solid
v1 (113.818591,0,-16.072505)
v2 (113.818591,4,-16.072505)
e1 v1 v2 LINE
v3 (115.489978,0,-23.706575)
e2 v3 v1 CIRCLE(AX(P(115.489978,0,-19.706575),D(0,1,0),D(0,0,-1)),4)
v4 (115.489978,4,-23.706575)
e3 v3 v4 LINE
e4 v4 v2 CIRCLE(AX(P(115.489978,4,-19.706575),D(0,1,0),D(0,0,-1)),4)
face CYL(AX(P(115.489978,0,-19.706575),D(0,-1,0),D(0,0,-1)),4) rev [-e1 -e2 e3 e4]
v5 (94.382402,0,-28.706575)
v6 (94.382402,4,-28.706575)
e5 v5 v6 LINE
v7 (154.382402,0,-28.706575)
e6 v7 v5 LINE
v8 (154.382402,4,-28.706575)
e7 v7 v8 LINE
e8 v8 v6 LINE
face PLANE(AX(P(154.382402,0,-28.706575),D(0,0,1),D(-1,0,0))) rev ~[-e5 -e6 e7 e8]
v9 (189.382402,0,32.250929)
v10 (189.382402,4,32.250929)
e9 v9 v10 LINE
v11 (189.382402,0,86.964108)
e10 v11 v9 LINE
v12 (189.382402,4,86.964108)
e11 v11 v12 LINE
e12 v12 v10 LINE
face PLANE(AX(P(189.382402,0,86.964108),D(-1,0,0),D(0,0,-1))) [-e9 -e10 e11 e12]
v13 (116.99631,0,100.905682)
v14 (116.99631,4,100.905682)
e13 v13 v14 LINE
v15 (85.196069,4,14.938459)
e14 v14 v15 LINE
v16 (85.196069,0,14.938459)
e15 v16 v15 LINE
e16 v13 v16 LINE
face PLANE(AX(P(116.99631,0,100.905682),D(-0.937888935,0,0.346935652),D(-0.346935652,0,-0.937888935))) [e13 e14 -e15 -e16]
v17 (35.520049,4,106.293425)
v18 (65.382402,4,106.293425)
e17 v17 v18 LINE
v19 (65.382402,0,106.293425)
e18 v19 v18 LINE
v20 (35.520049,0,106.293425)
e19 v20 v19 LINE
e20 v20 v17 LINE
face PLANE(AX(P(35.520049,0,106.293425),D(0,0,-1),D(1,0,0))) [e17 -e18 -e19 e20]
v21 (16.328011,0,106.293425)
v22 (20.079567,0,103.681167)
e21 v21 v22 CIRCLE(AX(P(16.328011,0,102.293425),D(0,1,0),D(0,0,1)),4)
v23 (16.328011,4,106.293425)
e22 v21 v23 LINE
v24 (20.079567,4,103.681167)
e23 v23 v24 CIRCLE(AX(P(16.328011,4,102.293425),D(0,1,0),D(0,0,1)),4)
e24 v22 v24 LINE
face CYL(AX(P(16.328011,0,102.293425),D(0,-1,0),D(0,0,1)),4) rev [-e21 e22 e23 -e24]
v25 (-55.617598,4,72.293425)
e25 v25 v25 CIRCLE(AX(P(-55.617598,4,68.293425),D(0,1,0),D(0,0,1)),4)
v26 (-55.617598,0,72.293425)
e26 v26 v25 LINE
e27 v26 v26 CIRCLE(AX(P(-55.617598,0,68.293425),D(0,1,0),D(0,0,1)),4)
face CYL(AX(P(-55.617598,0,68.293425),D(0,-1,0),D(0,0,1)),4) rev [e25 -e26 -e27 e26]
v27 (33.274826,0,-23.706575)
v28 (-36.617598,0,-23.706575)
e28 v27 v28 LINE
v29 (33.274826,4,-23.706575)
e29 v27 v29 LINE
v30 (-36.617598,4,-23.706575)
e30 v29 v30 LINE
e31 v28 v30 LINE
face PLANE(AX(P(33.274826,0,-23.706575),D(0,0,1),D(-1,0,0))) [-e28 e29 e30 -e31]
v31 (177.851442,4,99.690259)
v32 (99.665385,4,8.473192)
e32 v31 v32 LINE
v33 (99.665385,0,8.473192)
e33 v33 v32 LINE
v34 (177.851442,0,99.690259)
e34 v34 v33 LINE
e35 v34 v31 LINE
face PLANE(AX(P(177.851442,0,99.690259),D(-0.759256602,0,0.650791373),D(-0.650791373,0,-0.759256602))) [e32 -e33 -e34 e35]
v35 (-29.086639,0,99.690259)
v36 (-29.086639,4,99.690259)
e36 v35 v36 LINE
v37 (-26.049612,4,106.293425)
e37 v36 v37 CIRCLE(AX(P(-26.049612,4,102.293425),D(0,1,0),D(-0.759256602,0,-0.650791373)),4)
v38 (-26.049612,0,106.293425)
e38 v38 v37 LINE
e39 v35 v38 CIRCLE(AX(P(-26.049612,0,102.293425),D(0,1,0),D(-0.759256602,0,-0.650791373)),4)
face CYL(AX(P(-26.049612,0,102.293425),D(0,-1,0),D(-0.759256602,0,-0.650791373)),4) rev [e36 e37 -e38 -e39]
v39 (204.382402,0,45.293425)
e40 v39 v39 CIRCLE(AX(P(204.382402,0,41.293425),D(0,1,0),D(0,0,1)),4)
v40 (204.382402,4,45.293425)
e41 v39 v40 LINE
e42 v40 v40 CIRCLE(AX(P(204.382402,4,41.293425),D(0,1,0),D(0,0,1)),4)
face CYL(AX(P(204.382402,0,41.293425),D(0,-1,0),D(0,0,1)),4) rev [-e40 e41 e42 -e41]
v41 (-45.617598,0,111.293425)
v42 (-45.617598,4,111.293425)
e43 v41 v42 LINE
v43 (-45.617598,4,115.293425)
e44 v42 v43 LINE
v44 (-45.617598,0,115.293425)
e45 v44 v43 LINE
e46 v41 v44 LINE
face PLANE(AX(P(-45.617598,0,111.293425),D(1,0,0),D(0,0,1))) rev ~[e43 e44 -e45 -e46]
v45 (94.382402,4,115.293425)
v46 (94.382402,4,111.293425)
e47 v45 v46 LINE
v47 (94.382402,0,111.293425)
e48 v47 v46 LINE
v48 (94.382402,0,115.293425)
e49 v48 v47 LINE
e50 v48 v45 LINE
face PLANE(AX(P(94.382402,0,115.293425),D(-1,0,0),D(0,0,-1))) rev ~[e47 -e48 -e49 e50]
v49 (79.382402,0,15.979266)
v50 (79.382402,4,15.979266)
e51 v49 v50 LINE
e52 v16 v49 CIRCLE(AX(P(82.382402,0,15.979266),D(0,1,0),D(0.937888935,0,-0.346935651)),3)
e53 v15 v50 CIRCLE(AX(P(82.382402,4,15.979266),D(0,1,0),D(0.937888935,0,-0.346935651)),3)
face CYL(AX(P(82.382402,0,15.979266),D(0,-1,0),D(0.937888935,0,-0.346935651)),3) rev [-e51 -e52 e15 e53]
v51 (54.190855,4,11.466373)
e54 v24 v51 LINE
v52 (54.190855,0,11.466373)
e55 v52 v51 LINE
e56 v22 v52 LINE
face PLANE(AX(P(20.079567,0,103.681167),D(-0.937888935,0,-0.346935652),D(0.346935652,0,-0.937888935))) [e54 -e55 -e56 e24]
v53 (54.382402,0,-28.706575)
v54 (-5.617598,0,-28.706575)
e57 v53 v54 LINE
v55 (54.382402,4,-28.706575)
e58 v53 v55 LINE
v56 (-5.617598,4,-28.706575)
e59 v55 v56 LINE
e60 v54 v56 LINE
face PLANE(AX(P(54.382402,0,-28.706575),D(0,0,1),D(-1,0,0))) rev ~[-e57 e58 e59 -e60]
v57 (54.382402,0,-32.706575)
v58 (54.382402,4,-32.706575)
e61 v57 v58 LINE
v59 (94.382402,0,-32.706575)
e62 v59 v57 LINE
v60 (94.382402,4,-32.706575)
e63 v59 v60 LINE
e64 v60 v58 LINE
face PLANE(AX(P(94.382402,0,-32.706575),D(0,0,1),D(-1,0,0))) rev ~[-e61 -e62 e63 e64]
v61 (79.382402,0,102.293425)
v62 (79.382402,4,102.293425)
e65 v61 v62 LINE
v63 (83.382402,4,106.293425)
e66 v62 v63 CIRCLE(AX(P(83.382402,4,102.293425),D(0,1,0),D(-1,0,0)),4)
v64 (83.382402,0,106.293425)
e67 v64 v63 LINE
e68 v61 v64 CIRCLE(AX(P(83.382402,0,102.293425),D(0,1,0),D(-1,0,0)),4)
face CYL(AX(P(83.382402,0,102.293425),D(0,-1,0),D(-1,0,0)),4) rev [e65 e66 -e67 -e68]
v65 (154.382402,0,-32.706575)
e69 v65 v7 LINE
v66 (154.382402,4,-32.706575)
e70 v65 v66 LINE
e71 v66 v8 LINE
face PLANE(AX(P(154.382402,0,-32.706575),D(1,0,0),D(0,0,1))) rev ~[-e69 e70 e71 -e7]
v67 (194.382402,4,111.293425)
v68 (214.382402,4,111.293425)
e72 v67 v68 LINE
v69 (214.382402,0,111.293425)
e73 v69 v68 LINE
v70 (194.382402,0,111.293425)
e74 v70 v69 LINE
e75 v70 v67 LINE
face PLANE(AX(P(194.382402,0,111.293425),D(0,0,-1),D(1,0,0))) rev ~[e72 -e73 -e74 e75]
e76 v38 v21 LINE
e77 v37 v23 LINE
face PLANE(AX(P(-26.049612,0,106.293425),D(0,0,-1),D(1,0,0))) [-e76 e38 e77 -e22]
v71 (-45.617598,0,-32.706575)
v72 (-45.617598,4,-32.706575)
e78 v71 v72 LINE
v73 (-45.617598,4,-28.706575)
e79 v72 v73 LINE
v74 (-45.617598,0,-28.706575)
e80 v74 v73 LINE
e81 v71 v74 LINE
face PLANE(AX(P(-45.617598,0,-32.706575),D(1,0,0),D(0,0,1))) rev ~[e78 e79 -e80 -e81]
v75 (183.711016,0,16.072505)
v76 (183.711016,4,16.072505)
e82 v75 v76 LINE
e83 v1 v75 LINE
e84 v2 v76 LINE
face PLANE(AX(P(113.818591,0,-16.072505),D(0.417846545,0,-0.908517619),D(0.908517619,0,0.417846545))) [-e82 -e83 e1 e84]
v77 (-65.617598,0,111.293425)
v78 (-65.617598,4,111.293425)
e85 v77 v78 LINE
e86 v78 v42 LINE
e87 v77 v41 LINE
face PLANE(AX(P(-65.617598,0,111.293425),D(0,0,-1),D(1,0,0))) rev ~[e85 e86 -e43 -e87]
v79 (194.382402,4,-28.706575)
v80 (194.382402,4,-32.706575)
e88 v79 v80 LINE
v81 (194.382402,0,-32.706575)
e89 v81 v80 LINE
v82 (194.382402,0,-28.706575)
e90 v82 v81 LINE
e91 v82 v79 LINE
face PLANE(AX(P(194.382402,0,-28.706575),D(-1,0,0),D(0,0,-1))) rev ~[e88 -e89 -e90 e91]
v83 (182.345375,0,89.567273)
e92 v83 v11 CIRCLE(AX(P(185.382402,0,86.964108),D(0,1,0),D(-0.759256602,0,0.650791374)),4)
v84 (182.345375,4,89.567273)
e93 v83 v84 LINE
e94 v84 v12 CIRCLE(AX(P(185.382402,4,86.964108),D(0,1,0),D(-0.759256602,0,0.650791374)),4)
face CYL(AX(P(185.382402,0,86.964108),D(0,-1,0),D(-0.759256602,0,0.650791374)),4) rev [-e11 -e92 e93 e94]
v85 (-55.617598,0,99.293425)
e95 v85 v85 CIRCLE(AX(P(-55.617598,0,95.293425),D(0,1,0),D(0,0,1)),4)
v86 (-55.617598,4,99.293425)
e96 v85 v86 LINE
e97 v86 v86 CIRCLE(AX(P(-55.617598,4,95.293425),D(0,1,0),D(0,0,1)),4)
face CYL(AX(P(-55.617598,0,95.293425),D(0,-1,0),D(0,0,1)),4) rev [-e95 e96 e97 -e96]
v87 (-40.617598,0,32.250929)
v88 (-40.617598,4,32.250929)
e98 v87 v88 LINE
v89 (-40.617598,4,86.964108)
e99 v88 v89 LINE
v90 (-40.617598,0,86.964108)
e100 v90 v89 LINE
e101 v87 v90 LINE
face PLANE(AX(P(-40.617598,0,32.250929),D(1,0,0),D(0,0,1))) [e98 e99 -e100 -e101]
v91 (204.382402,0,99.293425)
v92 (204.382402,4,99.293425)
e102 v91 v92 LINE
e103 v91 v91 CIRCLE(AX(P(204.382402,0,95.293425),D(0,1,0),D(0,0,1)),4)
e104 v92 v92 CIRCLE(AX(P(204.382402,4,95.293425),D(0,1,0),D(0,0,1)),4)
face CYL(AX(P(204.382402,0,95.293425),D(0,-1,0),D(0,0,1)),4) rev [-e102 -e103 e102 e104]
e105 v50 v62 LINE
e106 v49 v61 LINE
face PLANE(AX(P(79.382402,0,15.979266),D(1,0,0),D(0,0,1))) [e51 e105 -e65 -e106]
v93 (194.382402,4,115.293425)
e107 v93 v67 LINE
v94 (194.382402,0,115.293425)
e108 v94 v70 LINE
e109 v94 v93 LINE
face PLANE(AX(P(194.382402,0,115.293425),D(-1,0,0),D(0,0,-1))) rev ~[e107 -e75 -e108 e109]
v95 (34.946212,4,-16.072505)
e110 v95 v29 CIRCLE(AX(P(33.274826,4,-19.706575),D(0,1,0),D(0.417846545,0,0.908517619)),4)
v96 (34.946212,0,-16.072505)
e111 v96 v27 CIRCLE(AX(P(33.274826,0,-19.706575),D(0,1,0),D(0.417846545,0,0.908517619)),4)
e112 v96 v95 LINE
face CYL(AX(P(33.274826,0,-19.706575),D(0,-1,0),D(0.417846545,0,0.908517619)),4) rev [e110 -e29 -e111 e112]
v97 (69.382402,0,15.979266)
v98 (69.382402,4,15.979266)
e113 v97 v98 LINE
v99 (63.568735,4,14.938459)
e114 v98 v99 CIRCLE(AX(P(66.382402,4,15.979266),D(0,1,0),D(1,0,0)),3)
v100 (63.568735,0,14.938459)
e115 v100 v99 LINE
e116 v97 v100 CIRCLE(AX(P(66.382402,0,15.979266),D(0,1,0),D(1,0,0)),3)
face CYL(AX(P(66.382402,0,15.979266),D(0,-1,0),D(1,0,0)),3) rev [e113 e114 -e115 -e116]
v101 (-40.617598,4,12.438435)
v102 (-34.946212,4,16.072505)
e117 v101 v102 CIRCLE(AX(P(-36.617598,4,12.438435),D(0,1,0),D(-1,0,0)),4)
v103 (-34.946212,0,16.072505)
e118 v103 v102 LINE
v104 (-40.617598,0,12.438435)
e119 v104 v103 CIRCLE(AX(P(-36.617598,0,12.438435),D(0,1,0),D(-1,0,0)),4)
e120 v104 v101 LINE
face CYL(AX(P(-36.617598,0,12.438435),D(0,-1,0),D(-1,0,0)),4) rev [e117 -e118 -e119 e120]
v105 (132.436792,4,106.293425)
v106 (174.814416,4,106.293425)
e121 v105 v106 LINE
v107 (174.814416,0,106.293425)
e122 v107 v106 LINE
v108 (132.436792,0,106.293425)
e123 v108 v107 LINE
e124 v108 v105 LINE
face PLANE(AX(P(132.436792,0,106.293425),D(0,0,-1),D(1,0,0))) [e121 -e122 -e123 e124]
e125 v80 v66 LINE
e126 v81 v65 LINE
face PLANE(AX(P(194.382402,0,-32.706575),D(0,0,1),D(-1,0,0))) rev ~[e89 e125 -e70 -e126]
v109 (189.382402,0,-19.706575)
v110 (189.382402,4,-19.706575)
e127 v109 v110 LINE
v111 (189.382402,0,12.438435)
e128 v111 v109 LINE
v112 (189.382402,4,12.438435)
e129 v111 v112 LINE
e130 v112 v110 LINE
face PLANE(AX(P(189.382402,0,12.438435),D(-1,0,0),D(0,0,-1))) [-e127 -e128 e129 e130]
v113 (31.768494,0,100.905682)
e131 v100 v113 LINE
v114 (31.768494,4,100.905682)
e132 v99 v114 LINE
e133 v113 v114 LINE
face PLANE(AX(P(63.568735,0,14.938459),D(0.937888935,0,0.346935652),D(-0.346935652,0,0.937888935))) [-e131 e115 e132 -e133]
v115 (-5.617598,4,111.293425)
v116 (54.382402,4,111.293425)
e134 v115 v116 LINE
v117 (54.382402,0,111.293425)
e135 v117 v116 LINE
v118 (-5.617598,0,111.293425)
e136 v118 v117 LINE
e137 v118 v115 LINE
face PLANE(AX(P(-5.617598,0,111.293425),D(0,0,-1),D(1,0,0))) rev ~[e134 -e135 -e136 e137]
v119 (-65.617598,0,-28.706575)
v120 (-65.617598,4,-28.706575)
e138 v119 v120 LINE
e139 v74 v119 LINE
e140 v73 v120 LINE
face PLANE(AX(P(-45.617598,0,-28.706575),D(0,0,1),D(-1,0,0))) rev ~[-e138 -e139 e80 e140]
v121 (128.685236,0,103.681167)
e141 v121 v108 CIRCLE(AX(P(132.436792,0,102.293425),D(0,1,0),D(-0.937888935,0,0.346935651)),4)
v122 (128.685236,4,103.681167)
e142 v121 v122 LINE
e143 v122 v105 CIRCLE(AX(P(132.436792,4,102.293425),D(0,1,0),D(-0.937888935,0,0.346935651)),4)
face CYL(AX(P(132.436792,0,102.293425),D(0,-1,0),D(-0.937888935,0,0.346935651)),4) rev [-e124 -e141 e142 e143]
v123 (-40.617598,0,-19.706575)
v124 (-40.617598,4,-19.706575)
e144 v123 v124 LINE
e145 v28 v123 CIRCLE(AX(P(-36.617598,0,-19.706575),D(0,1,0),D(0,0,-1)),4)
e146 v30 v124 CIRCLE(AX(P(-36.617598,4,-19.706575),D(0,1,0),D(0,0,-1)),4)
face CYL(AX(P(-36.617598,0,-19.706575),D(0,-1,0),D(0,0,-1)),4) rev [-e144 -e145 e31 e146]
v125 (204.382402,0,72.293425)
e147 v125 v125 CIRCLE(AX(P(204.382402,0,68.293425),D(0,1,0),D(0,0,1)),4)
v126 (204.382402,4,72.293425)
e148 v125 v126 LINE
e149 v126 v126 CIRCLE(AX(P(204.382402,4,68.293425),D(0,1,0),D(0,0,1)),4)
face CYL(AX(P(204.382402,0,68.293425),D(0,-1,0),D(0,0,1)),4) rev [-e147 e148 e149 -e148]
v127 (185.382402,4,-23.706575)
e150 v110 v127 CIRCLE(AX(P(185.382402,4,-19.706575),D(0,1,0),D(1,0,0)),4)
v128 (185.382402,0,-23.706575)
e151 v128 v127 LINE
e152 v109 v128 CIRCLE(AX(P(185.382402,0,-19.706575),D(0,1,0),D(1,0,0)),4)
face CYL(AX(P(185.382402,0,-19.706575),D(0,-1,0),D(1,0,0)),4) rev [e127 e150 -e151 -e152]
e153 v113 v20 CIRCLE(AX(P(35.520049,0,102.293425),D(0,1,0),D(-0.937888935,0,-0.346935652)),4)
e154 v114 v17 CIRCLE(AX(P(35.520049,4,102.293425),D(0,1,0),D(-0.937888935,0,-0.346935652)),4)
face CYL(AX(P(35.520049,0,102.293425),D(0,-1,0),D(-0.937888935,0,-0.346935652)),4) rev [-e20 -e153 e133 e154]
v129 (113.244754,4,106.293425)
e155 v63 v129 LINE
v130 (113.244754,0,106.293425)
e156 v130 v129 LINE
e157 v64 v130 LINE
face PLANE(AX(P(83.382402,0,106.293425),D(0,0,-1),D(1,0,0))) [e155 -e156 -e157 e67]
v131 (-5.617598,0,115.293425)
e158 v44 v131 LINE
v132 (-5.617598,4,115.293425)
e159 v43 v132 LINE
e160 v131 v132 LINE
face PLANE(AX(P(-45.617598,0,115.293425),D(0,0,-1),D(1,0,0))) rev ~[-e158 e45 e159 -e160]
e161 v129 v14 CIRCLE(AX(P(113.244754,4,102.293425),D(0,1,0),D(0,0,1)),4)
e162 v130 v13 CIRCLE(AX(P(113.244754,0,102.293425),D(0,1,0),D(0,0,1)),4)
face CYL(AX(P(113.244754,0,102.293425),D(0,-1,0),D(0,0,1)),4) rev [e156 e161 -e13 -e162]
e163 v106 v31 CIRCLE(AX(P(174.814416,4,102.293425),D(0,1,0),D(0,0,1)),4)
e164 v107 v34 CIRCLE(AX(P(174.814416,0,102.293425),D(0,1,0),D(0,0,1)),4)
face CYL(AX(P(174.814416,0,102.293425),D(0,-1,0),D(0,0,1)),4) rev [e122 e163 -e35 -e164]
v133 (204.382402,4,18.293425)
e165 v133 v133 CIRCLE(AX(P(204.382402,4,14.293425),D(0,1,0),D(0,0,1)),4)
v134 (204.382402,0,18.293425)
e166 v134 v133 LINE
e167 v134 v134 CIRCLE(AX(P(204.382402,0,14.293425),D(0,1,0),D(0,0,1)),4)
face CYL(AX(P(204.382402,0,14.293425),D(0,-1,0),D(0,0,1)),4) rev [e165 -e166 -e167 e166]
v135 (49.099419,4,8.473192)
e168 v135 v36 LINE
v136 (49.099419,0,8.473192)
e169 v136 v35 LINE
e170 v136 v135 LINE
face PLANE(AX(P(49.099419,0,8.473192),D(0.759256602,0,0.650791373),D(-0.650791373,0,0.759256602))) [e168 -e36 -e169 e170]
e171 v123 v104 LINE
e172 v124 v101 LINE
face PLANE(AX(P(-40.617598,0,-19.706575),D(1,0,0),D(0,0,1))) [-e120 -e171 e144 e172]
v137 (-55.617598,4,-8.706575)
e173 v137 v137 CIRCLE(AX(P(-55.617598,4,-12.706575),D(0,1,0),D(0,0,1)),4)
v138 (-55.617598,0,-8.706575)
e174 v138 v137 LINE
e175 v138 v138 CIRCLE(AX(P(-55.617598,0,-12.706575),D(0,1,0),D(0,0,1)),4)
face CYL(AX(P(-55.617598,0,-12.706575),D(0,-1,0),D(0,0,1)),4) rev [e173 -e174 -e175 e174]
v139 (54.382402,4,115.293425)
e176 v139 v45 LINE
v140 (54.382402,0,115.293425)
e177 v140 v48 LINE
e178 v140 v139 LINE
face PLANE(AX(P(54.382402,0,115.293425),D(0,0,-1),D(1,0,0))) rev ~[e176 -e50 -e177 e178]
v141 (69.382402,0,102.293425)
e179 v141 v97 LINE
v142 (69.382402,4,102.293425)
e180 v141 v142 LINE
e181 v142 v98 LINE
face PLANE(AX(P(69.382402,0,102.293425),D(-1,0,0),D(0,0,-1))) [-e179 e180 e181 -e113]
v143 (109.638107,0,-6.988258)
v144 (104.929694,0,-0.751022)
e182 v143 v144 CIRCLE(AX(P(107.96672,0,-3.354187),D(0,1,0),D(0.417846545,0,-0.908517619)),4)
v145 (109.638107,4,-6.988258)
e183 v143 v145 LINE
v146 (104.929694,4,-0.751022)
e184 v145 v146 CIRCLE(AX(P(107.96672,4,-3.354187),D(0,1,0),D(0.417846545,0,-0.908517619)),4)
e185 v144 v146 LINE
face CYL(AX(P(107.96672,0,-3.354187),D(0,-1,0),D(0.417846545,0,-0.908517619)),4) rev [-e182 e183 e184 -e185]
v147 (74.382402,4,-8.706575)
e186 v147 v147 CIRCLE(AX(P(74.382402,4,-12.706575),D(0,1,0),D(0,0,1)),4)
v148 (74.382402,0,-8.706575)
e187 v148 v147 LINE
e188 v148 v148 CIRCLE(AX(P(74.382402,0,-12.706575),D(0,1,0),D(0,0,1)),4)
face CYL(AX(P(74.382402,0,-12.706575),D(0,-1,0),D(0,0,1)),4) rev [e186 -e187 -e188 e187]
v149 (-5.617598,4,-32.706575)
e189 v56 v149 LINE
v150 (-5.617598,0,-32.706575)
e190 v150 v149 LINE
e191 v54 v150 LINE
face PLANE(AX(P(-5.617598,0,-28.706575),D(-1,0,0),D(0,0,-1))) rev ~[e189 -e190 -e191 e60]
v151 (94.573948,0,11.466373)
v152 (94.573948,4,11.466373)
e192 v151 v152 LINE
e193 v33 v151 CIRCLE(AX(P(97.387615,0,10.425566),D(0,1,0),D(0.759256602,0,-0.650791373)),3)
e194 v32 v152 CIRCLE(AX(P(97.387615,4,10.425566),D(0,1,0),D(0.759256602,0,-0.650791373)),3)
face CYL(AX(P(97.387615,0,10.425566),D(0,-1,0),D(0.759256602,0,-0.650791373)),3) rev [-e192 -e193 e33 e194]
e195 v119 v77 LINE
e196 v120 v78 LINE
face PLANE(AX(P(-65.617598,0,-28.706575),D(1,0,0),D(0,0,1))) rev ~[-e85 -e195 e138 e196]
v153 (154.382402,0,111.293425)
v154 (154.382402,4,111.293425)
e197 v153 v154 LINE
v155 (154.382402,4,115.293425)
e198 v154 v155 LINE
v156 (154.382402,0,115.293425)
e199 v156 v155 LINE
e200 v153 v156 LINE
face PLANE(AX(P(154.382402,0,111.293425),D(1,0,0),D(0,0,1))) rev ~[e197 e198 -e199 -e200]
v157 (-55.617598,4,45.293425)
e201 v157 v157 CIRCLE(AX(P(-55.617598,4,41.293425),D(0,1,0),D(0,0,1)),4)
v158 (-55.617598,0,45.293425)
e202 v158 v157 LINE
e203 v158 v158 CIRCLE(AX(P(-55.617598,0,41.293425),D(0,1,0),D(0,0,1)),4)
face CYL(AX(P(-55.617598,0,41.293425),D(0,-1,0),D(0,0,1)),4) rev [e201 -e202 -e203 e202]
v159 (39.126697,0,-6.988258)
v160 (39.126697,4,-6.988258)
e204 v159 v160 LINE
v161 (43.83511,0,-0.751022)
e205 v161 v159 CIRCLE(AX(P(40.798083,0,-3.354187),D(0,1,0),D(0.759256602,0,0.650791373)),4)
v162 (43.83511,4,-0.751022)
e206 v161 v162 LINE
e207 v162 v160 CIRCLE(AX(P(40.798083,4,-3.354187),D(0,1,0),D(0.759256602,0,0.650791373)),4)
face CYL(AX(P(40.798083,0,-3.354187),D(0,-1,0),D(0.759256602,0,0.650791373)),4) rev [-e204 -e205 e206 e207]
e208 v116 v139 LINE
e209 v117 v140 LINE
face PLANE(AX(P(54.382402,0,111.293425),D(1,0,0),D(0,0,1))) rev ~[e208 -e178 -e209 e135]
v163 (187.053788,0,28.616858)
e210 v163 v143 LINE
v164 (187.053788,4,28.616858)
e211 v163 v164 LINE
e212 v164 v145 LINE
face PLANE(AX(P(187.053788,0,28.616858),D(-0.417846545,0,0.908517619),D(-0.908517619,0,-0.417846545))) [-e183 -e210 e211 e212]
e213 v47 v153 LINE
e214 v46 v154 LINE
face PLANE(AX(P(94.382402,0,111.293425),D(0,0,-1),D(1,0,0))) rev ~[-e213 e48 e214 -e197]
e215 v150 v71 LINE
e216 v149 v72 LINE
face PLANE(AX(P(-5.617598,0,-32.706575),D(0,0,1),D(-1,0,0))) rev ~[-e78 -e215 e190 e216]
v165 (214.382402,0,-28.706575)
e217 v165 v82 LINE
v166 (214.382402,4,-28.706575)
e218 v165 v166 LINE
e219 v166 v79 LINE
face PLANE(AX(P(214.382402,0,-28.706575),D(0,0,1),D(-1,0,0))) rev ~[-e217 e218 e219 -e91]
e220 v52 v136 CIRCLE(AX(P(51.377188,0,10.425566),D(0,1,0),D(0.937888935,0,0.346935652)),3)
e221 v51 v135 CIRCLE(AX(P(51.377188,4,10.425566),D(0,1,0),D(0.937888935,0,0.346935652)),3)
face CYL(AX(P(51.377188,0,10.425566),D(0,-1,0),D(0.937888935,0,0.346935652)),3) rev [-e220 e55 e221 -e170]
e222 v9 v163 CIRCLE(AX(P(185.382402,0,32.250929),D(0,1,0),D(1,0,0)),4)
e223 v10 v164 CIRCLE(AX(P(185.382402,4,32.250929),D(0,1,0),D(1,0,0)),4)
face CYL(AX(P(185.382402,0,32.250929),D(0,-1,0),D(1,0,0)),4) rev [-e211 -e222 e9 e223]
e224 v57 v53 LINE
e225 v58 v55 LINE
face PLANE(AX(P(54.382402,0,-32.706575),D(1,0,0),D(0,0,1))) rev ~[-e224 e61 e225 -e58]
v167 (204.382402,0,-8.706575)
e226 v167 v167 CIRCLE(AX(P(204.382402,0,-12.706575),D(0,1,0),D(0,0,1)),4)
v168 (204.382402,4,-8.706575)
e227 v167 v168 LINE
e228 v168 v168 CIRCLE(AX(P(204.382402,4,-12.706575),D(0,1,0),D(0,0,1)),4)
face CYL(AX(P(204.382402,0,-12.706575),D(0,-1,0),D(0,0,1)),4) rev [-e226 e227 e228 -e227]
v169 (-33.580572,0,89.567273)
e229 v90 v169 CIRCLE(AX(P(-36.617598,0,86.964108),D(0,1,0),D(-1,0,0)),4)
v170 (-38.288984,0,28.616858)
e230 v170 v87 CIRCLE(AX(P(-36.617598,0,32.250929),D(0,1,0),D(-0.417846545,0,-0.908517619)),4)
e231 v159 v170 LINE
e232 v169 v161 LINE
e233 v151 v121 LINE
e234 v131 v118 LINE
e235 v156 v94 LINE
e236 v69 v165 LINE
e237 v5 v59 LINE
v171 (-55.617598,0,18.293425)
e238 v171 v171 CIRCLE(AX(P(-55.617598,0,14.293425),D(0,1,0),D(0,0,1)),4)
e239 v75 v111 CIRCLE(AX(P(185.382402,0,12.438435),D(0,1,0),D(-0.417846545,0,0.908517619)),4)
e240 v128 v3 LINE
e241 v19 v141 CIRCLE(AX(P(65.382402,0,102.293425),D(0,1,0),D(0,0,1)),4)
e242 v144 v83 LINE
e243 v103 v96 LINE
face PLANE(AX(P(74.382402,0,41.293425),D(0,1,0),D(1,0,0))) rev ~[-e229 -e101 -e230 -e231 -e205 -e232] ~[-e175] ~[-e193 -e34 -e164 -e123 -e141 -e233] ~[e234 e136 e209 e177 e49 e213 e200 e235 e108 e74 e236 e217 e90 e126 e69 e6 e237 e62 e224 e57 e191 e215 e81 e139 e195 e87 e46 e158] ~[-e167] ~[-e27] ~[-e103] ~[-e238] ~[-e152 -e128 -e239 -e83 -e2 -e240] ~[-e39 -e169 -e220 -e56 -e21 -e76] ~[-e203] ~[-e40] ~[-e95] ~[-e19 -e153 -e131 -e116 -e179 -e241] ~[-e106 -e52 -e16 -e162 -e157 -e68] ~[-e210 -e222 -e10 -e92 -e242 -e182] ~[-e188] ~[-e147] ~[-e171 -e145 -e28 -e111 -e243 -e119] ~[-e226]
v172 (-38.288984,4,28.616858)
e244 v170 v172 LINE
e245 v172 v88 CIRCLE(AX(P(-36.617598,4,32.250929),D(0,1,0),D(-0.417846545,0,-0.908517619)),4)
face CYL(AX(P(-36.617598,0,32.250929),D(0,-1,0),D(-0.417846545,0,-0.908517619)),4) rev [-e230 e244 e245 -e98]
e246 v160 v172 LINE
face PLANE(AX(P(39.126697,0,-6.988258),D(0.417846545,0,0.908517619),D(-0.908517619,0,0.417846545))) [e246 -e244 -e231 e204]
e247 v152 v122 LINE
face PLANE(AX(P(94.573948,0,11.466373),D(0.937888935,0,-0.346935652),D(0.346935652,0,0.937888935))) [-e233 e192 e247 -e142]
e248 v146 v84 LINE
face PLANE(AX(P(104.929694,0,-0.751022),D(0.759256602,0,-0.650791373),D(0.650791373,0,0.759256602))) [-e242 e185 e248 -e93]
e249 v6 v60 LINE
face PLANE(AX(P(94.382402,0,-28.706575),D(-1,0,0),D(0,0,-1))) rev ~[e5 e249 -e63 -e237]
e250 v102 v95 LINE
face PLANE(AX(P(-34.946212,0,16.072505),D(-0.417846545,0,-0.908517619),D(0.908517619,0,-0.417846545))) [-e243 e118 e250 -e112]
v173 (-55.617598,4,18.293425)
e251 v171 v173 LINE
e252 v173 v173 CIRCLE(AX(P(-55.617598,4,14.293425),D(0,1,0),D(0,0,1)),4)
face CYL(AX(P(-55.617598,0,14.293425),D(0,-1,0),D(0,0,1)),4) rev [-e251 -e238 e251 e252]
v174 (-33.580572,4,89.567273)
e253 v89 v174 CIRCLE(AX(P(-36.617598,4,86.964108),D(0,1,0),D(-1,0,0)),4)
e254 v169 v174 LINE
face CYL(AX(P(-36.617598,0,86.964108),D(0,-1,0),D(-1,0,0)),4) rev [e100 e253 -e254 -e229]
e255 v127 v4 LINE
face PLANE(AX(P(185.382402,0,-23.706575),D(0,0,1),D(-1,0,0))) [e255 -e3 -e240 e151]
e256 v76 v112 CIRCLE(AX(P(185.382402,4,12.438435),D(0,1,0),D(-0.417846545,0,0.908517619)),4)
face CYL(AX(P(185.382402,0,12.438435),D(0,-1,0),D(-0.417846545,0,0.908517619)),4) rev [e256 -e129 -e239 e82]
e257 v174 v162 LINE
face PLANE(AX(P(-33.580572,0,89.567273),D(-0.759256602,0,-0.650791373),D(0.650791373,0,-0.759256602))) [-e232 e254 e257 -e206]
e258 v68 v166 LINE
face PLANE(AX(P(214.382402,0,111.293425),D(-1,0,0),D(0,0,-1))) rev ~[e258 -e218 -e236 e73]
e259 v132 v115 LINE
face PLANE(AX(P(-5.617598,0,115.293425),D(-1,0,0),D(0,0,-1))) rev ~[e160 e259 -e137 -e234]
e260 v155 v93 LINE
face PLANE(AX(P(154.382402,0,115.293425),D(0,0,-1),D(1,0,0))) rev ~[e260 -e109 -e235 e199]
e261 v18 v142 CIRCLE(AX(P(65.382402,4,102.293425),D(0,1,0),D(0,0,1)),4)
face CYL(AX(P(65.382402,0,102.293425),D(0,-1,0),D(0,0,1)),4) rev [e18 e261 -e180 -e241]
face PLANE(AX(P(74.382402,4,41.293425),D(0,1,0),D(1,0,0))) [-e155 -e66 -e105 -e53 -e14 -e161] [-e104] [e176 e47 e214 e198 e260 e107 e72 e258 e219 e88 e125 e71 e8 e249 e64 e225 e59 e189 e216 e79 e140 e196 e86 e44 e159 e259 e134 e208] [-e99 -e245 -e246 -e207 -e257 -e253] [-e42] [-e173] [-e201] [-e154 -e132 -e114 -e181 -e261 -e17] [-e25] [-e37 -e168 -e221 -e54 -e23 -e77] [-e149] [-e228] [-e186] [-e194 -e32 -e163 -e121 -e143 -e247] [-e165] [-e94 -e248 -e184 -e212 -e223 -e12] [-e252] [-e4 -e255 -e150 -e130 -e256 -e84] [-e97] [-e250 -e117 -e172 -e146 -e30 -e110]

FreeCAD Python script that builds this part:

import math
import FreeCAD as App
import Part
import Sketcher
from FreeCAD import Vector
Q = App.Units.Quantity

doc = App.newDocument("Part")
body = doc.addObject("PartDesign::Body", "Body")

# Sketch on XZ plane
sketch1 = doc.addObject("Sketcher::SketchObject", "Sketch")
body.addObject(sketch1)
sketch1.AttachmentSupport = (doc.XZ_Plane, [""])
sketch1.MapMode = "FlatFace"
sketch1.addGeometry([
    Part.LineSegment(Vector(-65.617598, -28.706575, 0), Vector(-65.617598, 111.293425, 0)),  # 0
    Part.LineSegment(Vector(-65.617598, 111.293425, 0), Vector(-45.617598, 111.293425, 0)),  # 1
    Part.LineSegment(Vector(-45.617598, 111.293425, 0), Vector(-45.617598, 115.293425, 0)),  # 2
    Part.LineSegment(Vector(-45.617598, 115.293425, 0), Vector(-5.617598, 115.293425, 0)),  # 3
    Part.LineSegment(Vector(-5.617598, 115.293425, 0), Vector(-5.617598, 111.293425, 0)),  # 4
    Part.LineSegment(Vector(-5.617598, 111.293425, 0), Vector(54.382402, 111.293425, 0)),  # 5
    Part.LineSegment(Vector(54.382402, 111.293425, 0), Vector(54.382402, 115.293425, 0)),  # 6
    Part.LineSegment(Vector(54.382402, 115.293425, 0), Vector(94.382402, 115.293425, 0)),  # 7
    Part.LineSegment(Vector(94.382402, 115.293425, 0), Vector(94.382402, 111.293425, 0)),  # 8
    Part.LineSegment(Vector(94.382402, 111.293425, 0), Vector(154.382402, 111.293425, 0)),  # 9
    Part.LineSegment(Vector(154.382402, 111.293425, 0), Vector(154.382402, 115.293425, 0)),  # 10
    Part.LineSegment(Vector(154.382402, 115.293425, 0), Vector(194.382402, 115.293425, 0)),  # 11
    Part.LineSegment(Vector(194.382402, 115.293425, 0), Vector(194.382402, 111.293425, 0)),  # 12
    Part.LineSegment(Vector(194.382402, 111.293425, 0), Vector(214.382402, 111.293425, 0)),  # 13
    Part.LineSegment(Vector(214.382402, 111.293425, 0), Vector(214.382402, -28.706575, 0)),  # 14
    Part.LineSegment(Vector(214.382402, -28.706575, 0), Vector(194.382402, -28.706575, 0)),  # 15
    Part.LineSegment(Vector(194.382402, -28.706575, 0), Vector(194.382402, -32.706575, 0)),  # 16
    Part.LineSegment(Vector(194.382402, -32.706575, 0), Vector(154.382402, -32.706575, 0)),  # 17
    Part.LineSegment(Vector(154.382402, -32.706575, 0), Vector(154.382402, -28.706575, 0)),  # 18
    Part.LineSegment(Vector(154.382402, -28.706575, 0), Vector(94.382402, -28.706575, 0)),  # 19
    Part.LineSegment(Vector(94.382402, -28.706575, 0), Vector(94.382402, -32.706575, 0)),  # 20
    Part.LineSegment(Vector(94.382402, -32.706575, 0), Vector(54.382402, -32.706575, 0)),  # 21
    Part.LineSegment(Vector(54.382402, -32.706575, 0), Vector(54.382402, -28.706575, 0)),  # 22
    Part.LineSegment(Vector(54.382402, -28.706575, 0), Vector(-5.617598, -28.706575, 0)),  # 23
    Part.LineSegment(Vector(-5.617598, -28.706575, 0), Vector(-5.617598, -32.706575, 0)),  # 24
    Part.LineSegment(Vector(-5.617598, -32.706575, 0), Vector(-45.617598, -32.706575, 0)),  # 25
    Part.LineSegment(Vector(-45.617598, -32.706575, 0), Vector(-45.617598, -28.706575, 0)),  # 26
    Part.LineSegment(Vector(-45.617598, -28.706575, 0), Vector(-65.617598, -28.706575, 0)),  # 27
    Part.Circle(Vector(-55.617598, 95.293425, 0), Vector(0, 0, 1), 4),  # 28
    Part.Circle(Vector(-55.617598, 68.293425, 0), Vector(0, 0, 1), 4),  # 29
    Part.LineSegment(Vector(-38.288984, 28.616858, 0), Vector(39.126697, -6.988258, 0)),  # 30
    Part.ArcOfCircle(Part.Circle(Vector(40.798083, -3.354187, 0), Vector(0, 0, 1), 4), math.radians(-114.698705), math.radians(40.601295)),  # 31
    Part.LineSegment(Vector(43.83511, -0.751022, 0), Vector(-33.580572, 89.567273, 0)),  # 32
    Part.ArcOfCircle(Part.Circle(Vector(-36.617598, 86.964108, 0), Vector(0, 0, 1), 4), math.radians(40.601295), math.radians(180)),  # 33
    Part.LineSegment(Vector(-40.617598, 86.964108, 0), Vector(-40.617598, 32.250929, 0)),  # 34
    Part.ArcOfCircle(Part.Circle(Vector(-36.617598, 32.250929, 0), Vector(0, 0, 1), 4), math.radians(180), math.radians(245.301295)),  # 35
    Part.LineSegment(Vector(65.382402, 106.293425, 0), Vector(35.520049, 106.293425, 0)),  # 36
    Part.ArcOfCircle(Part.Circle(Vector(35.520049, 102.293425, 0), Vector(0, 0, 1), 4), math.radians(90), math.radians(200.3)),  # 37
    Part.LineSegment(Vector(31.768494, 100.905682, 0), Vector(63.568735, 14.938459, 0)),  # 38
    Part.ArcOfCircle(Part.Circle(Vector(66.382402, 15.979266, 0), Vector(0, 0, 1), 3), math.radians(-159.7), math.radians(0)),  # 39
    Part.LineSegment(Vector(69.382402, 15.979266, 0), Vector(69.382402, 102.293425, 0)),  # 40
    Part.ArcOfCircle(Part.Circle(Vector(65.382402, 102.293425, 0), Vector(0, 0, 1), 4), math.radians(0), math.radians(90)),  # 41
    Part.LineSegment(Vector(16.328011, 106.293425, 0), Vector(-26.049612, 106.293425, 0)),  # 42
    Part.ArcOfCircle(Part.Circle(Vector(-26.049612, 102.293425, 0), Vector(0, 0, 1), 4), math.radians(90), math.radians(220.601295)),  # 43
    Part.LineSegment(Vector(-29.086639, 99.690259, 0), Vector(49.099419, 8.473192, 0)),  # 44
    Part.ArcOfCircle(Part.Circle(Vector(51.377188, 10.425566, 0), Vector(0, 0, 1), 3), math.radians(-139.398705), math.radians(20.3)),  # 45
    Part.LineSegment(Vector(54.190855, 11.466373, 0), Vector(20.079567, 103.681167, 0)),  # 46
    Part.ArcOfCircle(Part.Circle(Vector(16.328011, 102.293425, 0), Vector(0, 0, 1), 4), math.radians(20.3), math.radians(90)),  # 47
    Part.Circle(Vector(204.382402, 95.293425, 0), Vector(0, 0, 1), 4),  # 48
    Part.LineSegment(Vector(79.382402, 102.293425, 0), Vector(79.382402, 15.979266, 0)),  # 49
    Part.ArcOfCircle(Part.Circle(Vector(82.382402, 15.979266, 0), Vector(0, 0, 1), 3), math.radians(180), math.radians(339.7)),  # 50
    Part.LineSegment(Vector(85.196069, 14.938459, 0), Vector(116.99631, 100.905682, 0)),  # 51
    Part.ArcOfCircle(Part.Circle(Vector(113.244754, 102.293425, 0), Vector(0, 0, 1), 4), math.radians(-20.3), math.radians(90)),  # 52
    Part.LineSegment(Vector(113.244754, 106.293425, 0), Vector(83.382402, 106.293425, 0)),  # 53
    Part.ArcOfCircle(Part.Circle(Vector(83.382402, 102.293425, 0), Vector(0, 0, 1), 4), math.radians(90), math.radians(180)),  # 54
    Part.LineSegment(Vector(128.685236, 103.681167, 0), Vector(94.573948, 11.466373, 0)),  # 55
    Part.ArcOfCircle(Part.Circle(Vector(97.387615, 10.425566, 0), Vector(0, 0, 1), 3), math.radians(159.7), math.radians(319.398705)),  # 56
    Part.LineSegment(Vector(99.665385, 8.473192, 0), Vector(177.851442, 99.690259, 0)),  # 57
    Part.ArcOfCircle(Part.Circle(Vector(174.814416, 102.293425, 0), Vector(0, 0, 1), 4), math.radians(-40.601295), math.radians(90)),  # 58
    Part.LineSegment(Vector(174.814416, 106.293425, 0), Vector(132.436792, 106.293425, 0)),  # 59
    Part.ArcOfCircle(Part.Circle(Vector(132.436792, 102.293425, 0), Vector(0, 0, 1), 4), math.radians(90), math.radians(159.7)),  # 60
    Part.Circle(Vector(204.382402, 68.293425, 0), Vector(0, 0, 1), 4),  # 61
    Part.LineSegment(Vector(109.638107, -6.988258, 0), Vector(187.053788, 28.616858, 0)),  # 62
    Part.ArcOfCircle(Part.Circle(Vector(185.382402, 32.250929, 0), Vector(0, 0, 1), 4), math.radians(-65.301295), math.radians(0)),  # 63
    Part.LineSegment(Vector(189.382402, 32.250929, 0), Vector(189.382402, 86.964108, 0)),  # 64
    Part.ArcOfCircle(Part.Circle(Vector(185.382402, 86.964108, 0), Vector(0, 0, 1), 4), math.radians(0), math.radians(139.398705)),  # 65
    Part.LineSegment(Vector(182.345375, 89.567273, 0), Vector(104.929694, -0.751022, 0)),  # 66
    Part.ArcOfCircle(Part.Circle(Vector(107.96672, -3.354187, 0), Vector(0, 0, 1), 4), math.radians(139.398705), math.radians(294.698705)),  # 67
    Part.Circle(Vector(-55.617598, 41.293425, 0), Vector(0, 0, 1), 4),  # 68
    Part.Circle(Vector(-55.617598, 14.293425, 0), Vector(0, 0, 1), 4),  # 69
    Part.LineSegment(Vector(-40.617598, 12.438435, 0), Vector(-40.617598, -19.706575, 0)),  # 70
    Part.ArcOfCircle(Part.Circle(Vector(-36.617598, -19.706575, 0), Vector(0, 0, 1), 4), math.radians(180), math.radians(270)),  # 71
    Part.LineSegment(Vector(-36.617598, -23.706575, 0), Vector(33.274826, -23.706575, 0)),  # 72
    Part.ArcOfCircle(Part.Circle(Vector(33.274826, -19.706575, 0), Vector(0, 0, 1), 4), math.radians(-90), math.radians(65.301295)),  # 73
    Part.LineSegment(Vector(34.946212, -16.072505, 0), Vector(-34.946212, 16.072505, 0)),  # 74
    Part.ArcOfCircle(Part.Circle(Vector(-36.617598, 12.438435, 0), Vector(0, 0, 1), 4), math.radians(65.301295), math.radians(180)),  # 75
    Part.Circle(Vector(-55.617598, -12.706575, 0), Vector(0, 0, 1), 4),  # 76
    Part.Circle(Vector(204.382402, 41.293425, 0), Vector(0, 0, 1), 4),  # 77
    Part.Circle(Vector(204.382402, 14.293425, 0), Vector(0, 0, 1), 4),  # 78
    Part.Circle(Vector(74.382402, -12.706575, 0), Vector(0, 0, 1), 4),  # 79
    Part.LineSegment(Vector(115.489978, -23.706575, 0), Vector(185.382402, -23.706575, 0)),  # 80
    Part.ArcOfCircle(Part.Circle(Vector(185.382402, -19.706575, 0), Vector(0, 0, 1), 4), math.radians(-90), math.radians(0)),  # 81
    Part.LineSegment(Vector(189.382402, -19.706575, 0), Vector(189.382402, 12.438435, 0)),  # 82
    Part.ArcOfCircle(Part.Circle(Vector(185.382402, 12.438435, 0), Vector(0, 0, 1), 4), math.radians(0), math.radians(114.698705)),  # 83
    Part.LineSegment(Vector(183.711016, 16.072505, 0), Vector(113.818591, -16.072505, 0)),  # 84
    Part.ArcOfCircle(Part.Circle(Vector(115.489978, -19.706575, 0), Vector(0, 0, 1), 4), math.radians(114.698705), math.radians(270)),  # 85
    Part.Circle(Vector(204.382402, -12.706575, 0), Vector(0, 0, 1), 4),  # 86
], False)
sketch1.addConstraint([
    Sketcher.Constraint("Coincident", 0, 2, 1, 1),
    Sketcher.Constraint("Coincident", 1, 2, 2, 1),
    Sketcher.Constraint("Coincident", 2, 2, 3, 1),
    Sketcher.Constraint("Coincident", 3, 2, 4, 1),
    Sketcher.Constraint("Coincident", 4, 2, 5, 1),
    Sketcher.Constraint("Coincident", 5, 2, 6, 1),
    Sketcher.Constraint("Coincident", 6, 2, 7, 1),
    Sketcher.Constraint("Coincident", 7, 2, 8, 1),
    Sketcher.Constraint("Coincident", 8, 2, 9, 1),
    Sketcher.Constraint("Coincident", 9, 2, 10, 1),
    Sketcher.Constraint("Coincident", 10, 2, 11, 1),
    Sketcher.Constraint("Coincident", 11, 2, 12, 1),
    Sketcher.Constraint("Coincident", 12, 2, 13, 1),
    Sketcher.Constraint("Coincident", 13, 2, 14, 1),
    Sketcher.Constraint("Coincident", 14, 2, 15, 1),
    Sketcher.Constraint("Coincident", 15, 2, 16, 1),
    Sketcher.Constraint("Coincident", 16, 2, 17, 1),
    Sketcher.Constraint("Coincident", 17, 2, 18, 1),
    Sketcher.Constraint("Coincident", 18, 2, 19, 1),
    Sketcher.Constraint("Coincident", 19, 2, 20, 1),
    Sketcher.Constraint("Coincident", 20, 2, 21, 1),
    Sketcher.Constraint("Coincident", 21, 2, 22, 1),
    Sketcher.Constraint("Coincident", 22, 2, 23, 1),
    Sketcher.Constraint("Coincident", 23, 2, 24, 1),
    Sketcher.Constraint("Coincident", 24, 2, 25, 1),
    Sketcher.Constraint("Coincident", 25, 2, 26, 1),
    Sketcher.Constraint("Coincident", 26, 2, 27, 1),
    Sketcher.Constraint("Coincident", 27, 2, 0, 1),
    Sketcher.Constraint("Tangent", 30, 2, 31, 1),
    Sketcher.Constraint("Tangent", 31, 2, 32, 1),
    Sketcher.Constraint("Tangent", 32, 2, 33, 1),
    Sketcher.Constraint("Tangent", 33, 2, 34, 1),
    Sketcher.Constraint("Tangent", 34, 2, 35, 1),
    Sketcher.Constraint("Tangent", 35, 2, 30, 1),
    Sketcher.Constraint("Tangent", 36, 2, 37, 1),
    Sketcher.Constraint("Tangent", 37, 2, 38, 1),
    Sketcher.Constraint("Tangent", 38, 2, 39, 1),
    Sketcher.Constraint("Tangent", 39, 2, 40, 1),
    Sketcher.Constraint("Tangent", 40, 2, 41, 1),
    Sketcher.Constraint("Tangent", 41, 2, 36, 1),
    Sketcher.Constraint("Tangent", 42, 2, 43, 1),
    Sketcher.Constraint("Tangent", 43, 2, 44, 1),
    Sketcher.Constraint("Tangent", 44, 2, 45, 1),
    Sketcher.Constraint("Tangent", 45, 2, 46, 1),
    Sketcher.Constraint("Tangent", 46, 2, 47, 1),
    Sketcher.Constraint("Tangent", 47, 2, 42, 1),
    Sketcher.Constraint("Tangent", 49, 2, 50, 1),
    Sketcher.Constraint("Tangent", 50, 2, 51, 1),
    Sketcher.Constraint("Tangent", 51, 2, 52, 1),
    Sketcher.Constraint("Tangent", 52, 2, 53, 1),
    Sketcher.Constraint("Tangent", 53, 2, 54, 1),
    Sketcher.Constraint("Tangent", 54, 2, 49, 1),
    Sketcher.Constraint("Tangent", 55, 2, 56, 1),
    Sketcher.Constraint("Tangent", 56, 2, 57, 1),
    Sketcher.Constraint("Tangent", 57, 2, 58, 1),
    Sketcher.Constraint("Tangent", 58, 2, 59, 1),
    Sketcher.Constraint("Tangent", 59, 2, 60, 1),
    Sketcher.Constraint("Tangent", 60, 2, 55, 1),
    Sketcher.Constraint("Tangent", 62, 2, 63, 1),
    Sketcher.Constraint("Tangent", 63, 2, 64, 1),
    Sketcher.Constraint("Tangent", 64, 2, 65, 1),
    Sketcher.Constraint("Tangent", 65, 2, 66, 1),
    Sketcher.Constraint("Tangent", 66, 2, 67, 1),
    Sketcher.Constraint("Tangent", 67, 2, 62, 1),
    Sketcher.Constraint("Tangent", 70, 2, 71, 1),
    Sketcher.Constraint("Tangent", 71, 2, 72, 1),
    Sketcher.Constraint("Tangent", 72, 2, 73, 1),
    Sketcher.Constraint("Tangent", 73, 2, 74, 1),
    Sketcher.Constraint("Tangent", 74, 2, 75, 1),
    Sketcher.Constraint("Tangent", 75, 2, 70, 1),
    Sketcher.Constraint("Tangent", 80, 2, 81, 1),
    Sketcher.Constraint("Tangent", 81, 2, 82, 1),
    Sketcher.Constraint("Tangent", 82, 2, 83, 1),
    Sketcher.Constraint("Tangent", 83, 2, 84, 1),
    Sketcher.Constraint("Tangent", 84, 2, 85, 1),
    Sketcher.Constraint("Tangent", 85, 2, 80, 1),
    Sketcher.Constraint("Vertical", 0),
    Sketcher.Constraint("Horizontal", 1),
    Sketcher.Constraint("Vertical", 2),
    Sketcher.Constraint("Horizontal", 3),
    Sketcher.Constraint("Vertical", 4),
    Sketcher.Constraint("Horizontal", 5),
    Sketcher.Constraint("Vertical", 6),
    Sketcher.Constraint("Horizontal", 7),
    Sketcher.Constraint("Vertical", 8),
    Sketcher.Constraint("Horizontal", 9),
    Sketcher.Constraint("Vertical", 10),
    Sketcher.Constraint("Horizontal", 11),
    Sketcher.Constraint("Vertical", 12),
    Sketcher.Constraint("Horizontal", 13),
    Sketcher.Constraint("Vertical", 14),
    Sketcher.Constraint("Horizontal", 15),
    Sketcher.Constraint("Vertical", 16),
    Sketcher.Constraint("Horizontal", 17),
    Sketcher.Constraint("Vertical", 18),
    Sketcher.Constraint("Horizontal", 19),
    Sketcher.Constraint("Vertical", 20),
    Sketcher.Constraint("Horizontal", 21),
    Sketcher.Constraint("Vertical", 22),
    Sketcher.Constraint("Horizontal", 23),
    Sketcher.Constraint("Vertical", 24),
    Sketcher.Constraint("Horizontal", 25),
    Sketcher.Constraint("Vertical", 26),
    Sketcher.Constraint("Horizontal", 27),
    Sketcher.Constraint("Vertical", 34),
    Sketcher.Constraint("Horizontal", 36),
    Sketcher.Constraint("Vertical", 40),
    Sketcher.Constraint("Horizontal", 42),
    Sketcher.Constraint("Vertical", 49),
    Sketcher.Constraint("Horizontal", 53),
    Sketcher.Constraint("Horizontal", 59),
    Sketcher.Constraint("Vertical", 64),
    Sketcher.Constraint("Vertical", 70),
    Sketcher.Constraint("Horizontal", 72),
    Sketcher.Constraint("Horizontal", 80),
    Sketcher.Constraint("Vertical", 82),
    Sketcher.Constraint("Equal", 28, 29),
    Sketcher.Constraint("Equal", 29, 31),
    Sketcher.Constraint("Equal", 31, 33),
    Sketcher.Constraint("Equal", 33, 35),
    Sketcher.Constraint("Equal", 35, 37),
    Sketcher.Constraint("Equal", 37, 41),
    Sketcher.Constraint("Equal", 41, 43),
    Sketcher.Constraint("Equal", 39, 45),
    Sketcher.Constraint("Equal", 43, 47),
    Sketcher.Constraint("Equal", 47, 48),
    Sketcher.Constraint("Equal", 45, 50),
    Sketcher.Constraint("Equal", 48, 52),
    Sketcher.Constraint("Equal", 52, 54),
    Sketcher.Constraint("Equal", 50, 56),
    Sketcher.Constraint("Equal", 54, 58),
    Sketcher.Constraint("Equal", 58, 60),
    Sketcher.Constraint("Equal", 60, 61),
    Sketcher.Constraint("Equal", 61, 63),
    Sketcher.Constraint("Equal", 63, 65),
    Sketcher.Constraint("Equal", 65, 67),
    Sketcher.Constraint("Equal", 67, 68),
    Sketcher.Constraint("Equal", 68, 69),
    Sketcher.Constraint("Equal", 69, 71),
    Sketcher.Constraint("Equal", 71, 73),
    Sketcher.Constraint("Equal", 73, 75),
    Sketcher.Constraint("Equal", 75, 76),
    Sketcher.Constraint("Equal", 76, 77),
    Sketcher.Constraint("Equal", 77, 78),
    Sketcher.Constraint("Equal", 78, 79),
    Sketcher.Constraint("Equal", 79, 81),
    Sketcher.Constraint("Equal", 81, 83),
    Sketcher.Constraint("Equal", 83, 85),
    Sketcher.Constraint("Equal", 85, 86),
    Sketcher.Constraint("Symmetric", 73, 2, 74, 2, -1, 1),
    Sketcher.Constraint("Parallel", 32, 44),
    Sketcher.Constraint("Parallel", 38, 46),
    Sketcher.Constraint("Parallel", 51, 55),
    Sketcher.Constraint("Parallel", 57, 66),
    Sketcher.Constraint("Parallel", 30, 74),
    Sketcher.Constraint("Parallel", 62, 84),
    Sketcher.Constraint("Horizontal", 41, 3, 43, 3),
    Sketcher.Constraint("Horizontal", 28, 3, 48, 3),
    Sketcher.Constraint("Horizontal", 39, 3, 50, 3),
    Sketcher.Constraint("Horizontal", 47, 3, 52, 3),
    Sketcher.Constraint("Horizontal", 45, 3, 56, 3),
    Sketcher.Constraint("Horizontal", 54, 3, 58, 3),
    Sketcher.Constraint("Horizontal", 29, 3, 61, 3),
    Sketcher.Constraint("Horizontal", 35, 3, 63, 3),
    Sketcher.Constraint("Horizontal", 33, 3, 65, 3),
    Sketcher.Constraint("Horizontal", 31, 3, 67, 3),
    Sketcher.Constraint("Horizontal", 68, 3, 77, 3),
    Sketcher.Constraint("Horizontal", 69, 3, 78, 3),
    Sketcher.Constraint("Horizontal", 76, 3, 79, 3),
    Sketcher.Constraint("Horizontal", 73, 3, 81, 3),
    Sketcher.Constraint("Horizontal", 75, 3, 83, 3),
    Sketcher.Constraint("Horizontal", 79, 3, 86, 3),
    Sketcher.Constraint("Horizontal", 1, 2, 4, 2),
    Sketcher.Constraint("Horizontal", 3, 2, 6, 2),
    Sketcher.Constraint("Horizontal", 5, 2, 8, 2),
    Sketcher.Constraint("Horizontal", 7, 2, 10, 2),
    Sketcher.Constraint("Horizontal", 9, 2, 12, 2),
    Sketcher.Constraint("Horizontal", 15, 2, 18, 2),
    Sketcher.Constraint("Horizontal", 17, 2, 20, 2),
    Sketcher.Constraint("Horizontal", 19, 2, 22, 2),
    Sketcher.Constraint("Horizontal", 21, 2, 24, 2),
    Sketcher.Constraint("Horizontal", 23, 2, 26, 2),
    Sketcher.Constraint("Horizontal", 38, 2, 50, 2),
    Sketcher.Constraint("Horizontal", 44, 2, 56, 2),
    Sketcher.Constraint("Vertical", 28, 3, 29, 3),
    Sketcher.Constraint("Vertical", 48, 3, 61, 3),
    Sketcher.Constraint("Vertical", 29, 3, 68, 3),
    Sketcher.Constraint("Vertical", 68, 3, 69, 3),
    Sketcher.Constraint("Vertical", 35, 3, 71, 3),
    Sketcher.Constraint("Vertical", 69, 3, 76, 3),
    Sketcher.Constraint("Vertical", 61, 3, 77, 3),
    Sketcher.Constraint("Vertical", 77, 3, 78, 3),
    Sketcher.Constraint("Vertical", 65, 3, 81, 3),
    Sketcher.Constraint("Vertical", 78, 3, 86, 3),
    Sketcher.Constraint("Vertical", 12, 2, 15, 2),
    Sketcher.Constraint("Vertical", 10, 2, 17, 2),
    Sketcher.Constraint("Vertical", 8, 2, 19, 2),
    Sketcher.Constraint("Vertical", 6, 2, 21, 2),
    Sketcher.Constraint("Vertical", 4, 2, 23, 2),
    Sketcher.Constraint("Vertical", 2, 2, 25, 2),
    Sketcher.Constraint("Equal", 3, 7),
    Sketcher.Constraint("Equal", 5, 9),
    Sketcher.Constraint("Equal", 7, 11),
    Sketcher.Constraint("Equal", 1, 13),
    Sketcher.Constraint("Equal", 12, 16),
    Sketcher.Constraint("Diameter", 28, 8.0),
    Sketcher.Constraint("Radius", 39, 3.0),
    Sketcher.Constraint("DistanceX", 1, 1, 1, 2, 20.0),
    Sketcher.Constraint("DistanceX", 3, 1, 3, 2, 40.0),
    Sketcher.Constraint("DistanceX", 5, 1, 5, 2, 60.0),
    Sketcher.Constraint("DistanceY", 0, 1, 0, 2, 140.0),
    Sketcher.Constraint("DistanceY", 2, 1, 2, 2, 4.0),
    Sketcher.Constraint("Angle", 38, Q("-69.7 deg")),
    Sketcher.Constraint("DistanceY", 34, 2, 34, 1, 54.713179),
    Sketcher.Constraint("DistanceY", 40, 1, 40, 2, 86.314159),
    Sketcher.Constraint("DistanceY", 70, 2, 70, 1, 32.14501),
    Sketcher.Constraint("DistanceX", 28, 3, -1, 1, 55.617598),
    Sketcher.Constraint("DistanceX", 33, 3, -1, 1, 36.617598),
    Sketcher.Constraint("DistanceX", -1, 1, 39, 3, 66.382402),
    Sketcher.Constraint("DistanceX", -1, 1, 48, 3, 204.382402),
    Sketcher.Constraint("DistanceX", -1, 1, 50, 3, 82.382402),
    Sketcher.Constraint("DistanceX", -1, 1, 63, 3, 185.382402),
    Sketcher.Constraint("DistanceX", -1, 1, 79, 3, 74.382402),
    Sketcher.Constraint("DistanceX", 0, 2, -1, 1, 65.617598),
    Sketcher.Constraint("Distance", 32, 118.956219),
    Sketcher.Constraint("DistanceX", 42, 2, 42, 1, 42.377624),
    Sketcher.Constraint("DistanceY", -1, 1, 35, 3, 32.250929),
    Sketcher.Constraint("DistanceX", -1, 1, 45, 3, 51.377188),
    Sketcher.Constraint("DistanceY", -1, 1, 37, 2, 100.905682),
    Sketcher.Constraint("DistanceX", -1, 1, 55, 2, 94.573948),
    Sketcher.Constraint("DistanceY", -1, 1, 28, 3, 95.293425),
    Sketcher.Constraint("DistanceY", -1, 1, 29, 3, 68.293425),
    Sketcher.Constraint("DistanceY", -1, 1, 68, 3, 41.293425),
    Sketcher.Constraint("DistanceY", -1, 1, 69, 3, 14.293425),
    Sketcher.Constraint("DistanceY", 76, 3, -1, 1, 12.706575),
    Sketcher.Constraint("DistanceY", -1, 1, 0, 2, 111.293425),
])
pad1 = doc.addObject("PartDesign::Pad", "Pad")
body.addObject(pad1)
pad1.Profile = sketch1
pad1.Length = 4
pad1.Reversed = True

doc.recompute()
